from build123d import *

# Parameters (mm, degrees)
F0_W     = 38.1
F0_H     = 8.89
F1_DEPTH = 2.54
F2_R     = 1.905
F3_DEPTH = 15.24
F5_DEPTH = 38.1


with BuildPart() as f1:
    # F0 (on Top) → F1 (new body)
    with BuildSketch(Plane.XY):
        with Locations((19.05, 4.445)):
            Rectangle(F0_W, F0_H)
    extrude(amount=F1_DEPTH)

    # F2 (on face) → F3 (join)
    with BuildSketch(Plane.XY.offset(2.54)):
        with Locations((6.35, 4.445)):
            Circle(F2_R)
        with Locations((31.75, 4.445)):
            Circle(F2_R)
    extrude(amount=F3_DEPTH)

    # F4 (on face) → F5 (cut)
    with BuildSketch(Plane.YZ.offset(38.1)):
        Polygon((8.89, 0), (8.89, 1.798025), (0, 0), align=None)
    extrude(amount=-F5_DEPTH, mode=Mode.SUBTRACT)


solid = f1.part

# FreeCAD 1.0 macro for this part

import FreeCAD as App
import Part
import Sketcher
from FreeCAD import Vector
Q = App.Units.Quantity


def add_polygon(sketch, points):
    """Adds a closed chain of lines whose ends are joined by coincident constraints."""
    first, n = sketch.GeometryCount, len(points)
    for a, b in zip(points, points[1:] + points[:1]):
        sketch.addGeometry(Part.LineSegment(App.Vector(*a, 0), App.Vector(*b, 0)), False)
    for i in range(n):
        sketch.addConstraint(Sketcher.Constraint("Coincident", first + i, 2, first + (i + 1) % n, 1))

doc = App.newDocument("Part")
body = doc.addObject("PartDesign::Body", "Body")

sketch1 = doc.addObject("Sketcher::SketchObject", "Sketch")
body.addObject(sketch1)
sketch1.AttachmentSupport = (doc.XY_Plane, [""])
sketch1.MapMode = "FlatFace"
add_polygon(sketch1, [(0, 9), (0, 0), (38, 0), (38, 9)])
sketch1.addConstraint(Sketcher.Constraint("Vertical", 0))
sketch1.addConstraint(Sketcher.Constraint("Horizontal", 1))
sketch1.addConstraint(Sketcher.Constraint("Vertical", 2))
sketch1.addConstraint(Sketcher.Constraint("Horizontal", 3))
sketch1.addConstraint(Sketcher.Constraint("Coincident", 0, 2, -1, 1))
sketch1.addConstraint(Sketcher.Constraint("DistanceX", 1, 1, 1, 2, Q("1.5 in")))
sketch1.addConstraint(Sketcher.Constraint("DistanceY", 0, 2, 0, 1, Q("0.35 in")))
pad1 = doc.addObject("PartDesign::Pad", "Pad")
body.addObject(pad1)
pad1.Profile = sketch1
pad1.Length = Q("0.1 in")

sketch2 = doc.addObject("Sketcher::SketchObject", "Sketch001")
body.addObject(sketch2)
sketch2.AttachmentSupport = (doc.XY_Plane, [""])
sketch2.MapMode = "FlatFace"
sketch2.AttachmentOffset = App.Placement(Vector(0, 0, 0.1 * 25.4), App.Rotation())
sketch2.addGeometry(Part.Circle(Vector(6.3, 4.4, 0), Vector(0, 0, 1), 1.9), False)
sketch2.addGeometry(Part.Circle(Vector(31.8, 4.4, 0), Vector(0, 0, 1), 1.9), False)
sketch2.addConstraint(Sketcher.Constraint("Equal", 0, 1))
sketch2.addConstraint(Sketcher.Constraint("Horizontal", 0, 3, 1, 3))
sketch2.addConstraint(Sketcher.Constraint("Diameter", 0, Q("0.15 in")))
sketch2.addConstraint(Sketcher.Constraint("DistanceX", 0, 3, 1, 3, Q("1 in")))
sketch2.addConstraint(Sketcher.Constraint("DistanceX", -1, 1, 0, 3, Q("0.25 in")))
sketch2.addConstraint(Sketcher.Constraint("DistanceY", -1, 1, 0, 3, Q("0.175 in")))
pad2 = doc.addObject("PartDesign::Pad", "Pad001")
body.addObject(pad2)
pad2.Profile = sketch2
pad2.Length = Q("0.6 in")

sketch3 = doc.addObject("Sketcher::SketchObject", "Sketch002")
body.addObject(sketch3)
sketch3.AttachmentSupport = (doc.YZ_Plane, [""])
sketch3.MapMode = "FlatFace"
sketch3.AttachmentOffset = App.Placement(Vector(0, 0, 1.5 * 25.4), App.Rotation())
add_polygon(sketch3, [(8.9, 0), (8.9, 1.8), (0, 0)])
sketch3.addConstraint(Sketcher.Constraint("Vertical", 0))
sketch3.addConstraint(Sketcher.Constraint("Horizontal", 2))
sketch3.addConstraint(Sketcher.Constraint("Coincident", 1, 2, -1, 1))
sketch3.addConstraint(Sketcher.Constraint("DistanceX", 2, 1, 2, 2, Q("0.35 in")))
sketch3.addConstraint(Sketcher.Constraint("DistanceY", 0, 1, 0, 2, Q("1.798025 mm")))
pocket1 = doc.addObject("PartDesign::Pocket", "Pocket")
body.addObject(pocket1)
pocket1.Profile = sketch3
pocket1.Length = Q("1.5 in")

doc.recompute()
